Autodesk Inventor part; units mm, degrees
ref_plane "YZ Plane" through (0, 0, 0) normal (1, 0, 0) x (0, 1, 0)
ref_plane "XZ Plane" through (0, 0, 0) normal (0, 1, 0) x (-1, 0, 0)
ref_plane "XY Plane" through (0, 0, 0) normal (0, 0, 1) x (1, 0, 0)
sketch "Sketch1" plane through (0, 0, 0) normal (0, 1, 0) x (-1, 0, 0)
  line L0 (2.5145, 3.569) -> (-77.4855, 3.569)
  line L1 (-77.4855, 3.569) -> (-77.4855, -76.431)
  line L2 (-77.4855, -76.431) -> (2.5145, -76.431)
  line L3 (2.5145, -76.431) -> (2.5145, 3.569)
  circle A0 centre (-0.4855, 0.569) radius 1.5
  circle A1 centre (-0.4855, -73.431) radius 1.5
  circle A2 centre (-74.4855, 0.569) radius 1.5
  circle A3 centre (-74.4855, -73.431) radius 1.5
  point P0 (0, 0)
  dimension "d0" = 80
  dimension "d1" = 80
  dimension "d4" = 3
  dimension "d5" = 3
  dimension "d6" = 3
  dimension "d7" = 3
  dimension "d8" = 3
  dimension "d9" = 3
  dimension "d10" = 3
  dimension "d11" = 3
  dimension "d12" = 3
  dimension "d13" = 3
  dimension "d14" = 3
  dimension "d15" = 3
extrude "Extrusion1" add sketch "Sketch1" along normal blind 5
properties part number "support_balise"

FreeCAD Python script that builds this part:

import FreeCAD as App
import Part
import Sketcher

V = App.Vector
Q = App.Units.Quantity


def add_polygon(sketch, points):
    """Adds a closed chain of lines whose ends are joined by coincident constraints."""
    first, n = sketch.GeometryCount, len(points)
    for a, b in zip(points, points[1:] + points[:1]):
        sketch.addGeometry(Part.LineSegment(App.Vector(*a, 0), App.Vector(*b, 0)), False)
    for i in range(n):
        sketch.addConstraint(Sketcher.Constraint("Coincident", first + i, 2, first + (i + 1) % n, 1))

doc = App.newDocument("Part")
body = doc.addObject("PartDesign::Body", "Body")

# Sketch on XZ plane
sketch1 = body.newObject("Sketcher::SketchObject", "Sketch")
sketch1.AttachmentSupport = (doc.getObject("XZ_Plane"), [""])
sketch1.MapMode = "FlatFace"
add_polygon(sketch1, [(-2.5, -76.4), (-2.5, 3.6), (77.5, 3.6), (77.5, -76.4)])  # lines 0-3
sketch1.addGeometry(Part.Circle(V(74.5, -73.4, 0), V(0, 0, 1), 1.5), False)  # 4
sketch1.addGeometry(Part.Circle(V(0.5, -73.4, 0), V(0, 0, 1), 1.5), False)  # 5
sketch1.addGeometry(Part.Circle(V(74.5, 0.6, 0), V(0, 0, 1), 1.5), False)  # 6
sketch1.addGeometry(Part.Circle(V(0.5, 0.6, 0), V(0, 0, 1), 1.5), False)  # 7
sketch1.addConstraint(Sketcher.Constraint("Vertical", 0))
sketch1.addConstraint(Sketcher.Constraint("Horizontal", 1))
sketch1.addConstraint(Sketcher.Constraint("Vertical", 2))
sketch1.addConstraint(Sketcher.Constraint("Horizontal", 3))
sketch1.addConstraint(Sketcher.Constraint("Equal", 4, 5))
sketch1.addConstraint(Sketcher.Constraint("Equal", 5, 6))
sketch1.addConstraint(Sketcher.Constraint("Equal", 6, 7))
sketch1.addConstraint(Sketcher.Constraint("Horizontal", 4, 3, 5, 3))
sketch1.addConstraint(Sketcher.Constraint("Horizontal", 6, 3, 7, 3))
sketch1.addConstraint(Sketcher.Constraint("Vertical", 4, 3, 6, 3))
sketch1.addConstraint(Sketcher.Constraint("Vertical", 5, 3, 7, 3))
sketch1.addConstraint(Sketcher.Constraint("Equal", 3, 0))
sketch1.addConstraint(Sketcher.Constraint("Diameter", 4, Q("3 mm")))
sketch1.addConstraint(Sketcher.Constraint("DistanceX", 1, 1, 1, 2, Q("80 mm")))
sketch1.addConstraint(Sketcher.Constraint("DistanceX", 0, 2, 7, 3, Q("3 mm")))
sketch1.addConstraint(Sketcher.Constraint("DistanceY", 7, 3, 0, 2, Q("3 mm")))
sketch1.addConstraint(Sketcher.Constraint("DistanceX", 6, 3, 1, 2, Q("3 mm")))
sketch1.addConstraint(Sketcher.Constraint("DistanceY", 2, 2, 4, 3, Q("3 mm")))
sketch1.addConstraint(Sketcher.Constraint("DistanceY", 4, 3, -1, 1, Q("73.431 mm")))
sketch1.addConstraint(Sketcher.Constraint("DistanceX", -1, 1, 4, 3, Q("74.4855 mm")))
pad1 = body.newObject("PartDesign::Pad", "Pad")
pad1.Profile = sketch1
pad1.Length = 5
pad1.Reversed = True

doc.recompute()
